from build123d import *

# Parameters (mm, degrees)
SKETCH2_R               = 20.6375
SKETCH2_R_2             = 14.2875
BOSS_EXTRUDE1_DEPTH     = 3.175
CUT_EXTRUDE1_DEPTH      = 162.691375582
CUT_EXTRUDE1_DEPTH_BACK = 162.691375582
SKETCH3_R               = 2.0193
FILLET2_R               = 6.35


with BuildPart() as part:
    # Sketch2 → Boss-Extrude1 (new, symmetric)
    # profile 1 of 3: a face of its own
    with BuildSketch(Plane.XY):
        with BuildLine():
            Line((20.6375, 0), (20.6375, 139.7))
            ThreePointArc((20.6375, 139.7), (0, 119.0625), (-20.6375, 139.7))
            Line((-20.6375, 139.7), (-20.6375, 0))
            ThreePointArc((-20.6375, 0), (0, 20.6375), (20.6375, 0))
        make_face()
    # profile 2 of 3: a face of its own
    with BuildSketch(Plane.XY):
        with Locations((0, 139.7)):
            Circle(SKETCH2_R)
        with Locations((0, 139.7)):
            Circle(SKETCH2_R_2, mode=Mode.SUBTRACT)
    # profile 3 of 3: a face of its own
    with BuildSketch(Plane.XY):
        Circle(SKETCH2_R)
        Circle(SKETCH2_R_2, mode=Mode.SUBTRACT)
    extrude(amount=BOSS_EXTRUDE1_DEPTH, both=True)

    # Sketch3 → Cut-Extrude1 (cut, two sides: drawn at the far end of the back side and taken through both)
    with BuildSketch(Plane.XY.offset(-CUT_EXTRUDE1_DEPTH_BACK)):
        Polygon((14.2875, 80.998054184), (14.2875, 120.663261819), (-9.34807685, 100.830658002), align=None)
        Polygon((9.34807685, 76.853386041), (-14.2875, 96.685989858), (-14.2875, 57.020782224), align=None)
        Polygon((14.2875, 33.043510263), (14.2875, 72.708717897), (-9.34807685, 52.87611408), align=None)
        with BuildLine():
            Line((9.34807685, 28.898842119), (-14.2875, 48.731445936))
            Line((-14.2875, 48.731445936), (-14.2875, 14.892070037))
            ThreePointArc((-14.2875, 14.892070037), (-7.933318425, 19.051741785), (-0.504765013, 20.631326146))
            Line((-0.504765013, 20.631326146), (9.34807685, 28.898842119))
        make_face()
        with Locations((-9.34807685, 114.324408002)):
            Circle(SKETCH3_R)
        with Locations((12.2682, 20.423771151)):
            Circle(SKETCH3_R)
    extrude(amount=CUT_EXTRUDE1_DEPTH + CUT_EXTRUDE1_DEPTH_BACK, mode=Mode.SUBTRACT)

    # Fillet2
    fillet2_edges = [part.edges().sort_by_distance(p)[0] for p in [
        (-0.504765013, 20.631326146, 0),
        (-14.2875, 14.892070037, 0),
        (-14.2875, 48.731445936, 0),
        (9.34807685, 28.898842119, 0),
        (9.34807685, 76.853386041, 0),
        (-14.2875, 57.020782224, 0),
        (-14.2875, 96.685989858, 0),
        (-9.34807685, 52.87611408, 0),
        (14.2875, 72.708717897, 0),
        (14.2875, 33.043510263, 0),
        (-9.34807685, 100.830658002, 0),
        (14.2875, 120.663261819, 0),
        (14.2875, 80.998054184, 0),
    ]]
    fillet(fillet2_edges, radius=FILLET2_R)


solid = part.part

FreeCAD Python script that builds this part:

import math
import FreeCAD as App
import Part
import Sketcher
from FreeCAD import Vector
Q = App.Units.Quantity


def edges_at(feature, points):
    """Names of the edges that pass closest to the given points."""
    edges = feature.Shape.Edges
    near = lambda p: min(range(len(edges)), key=lambda i: edges[i].distToShape(Part.Vertex(*p))[0])
    return sorted({f"Edge{near(p) + 1}" for p in points})

doc = App.newDocument("Part")
body = doc.addObject("PartDesign::Body", "Body")

# Sketch on XY plane
sketch1 = body.newObject("Sketcher::SketchObject", "Sketch")
sketch1.AttachmentSupport = (doc.getObject("XY_Plane"), [""])
sketch1.MapMode = "FlatFace"
sketch1.addGeometry(Part.LineSegment(Vector(21, 0, 0), Vector(21, 140, 0)), False)
sketch1.addGeometry(Part.ArcOfCircle(Part.Circle(Vector(0, 140, 0), Vector(0, 0, 1), 21), math.radians(0), math.radians(180)), False)
sketch1.addGeometry(Part.LineSegment(Vector(-21, 140, 0), Vector(-21, 0, 0)), False)
sketch1.addGeometry(Part.ArcOfCircle(Part.Circle(Vector(0, 0, 0), Vector(0, 0, 1), 21), math.radians(180), math.radians(360)), False)
sketch1.addGeometry(Part.Circle(Vector(0, 140, 0), Vector(0, 0, 1), 14), False)
sketch1.addGeometry(Part.Circle(Vector(0, 0, 0), Vector(0, 0, 1), 14), False)
sketch1.addConstraint(Sketcher.Constraint("Tangent", 0, 2, 1, 1))
sketch1.addConstraint(Sketcher.Constraint("Tangent", 1, 2, 2, 1))
sketch1.addConstraint(Sketcher.Constraint("Tangent", 2, 2, 3, 1))
sketch1.addConstraint(Sketcher.Constraint("Tangent", 3, 2, 0, 1))
sketch1.addConstraint(Sketcher.Constraint("Vertical", 0))
sketch1.addConstraint(Sketcher.Constraint("Vertical", 2))
sketch1.addConstraint(Sketcher.Constraint("Coincident", 3, 3, -1, 1))
sketch1.addConstraint(Sketcher.Constraint("Coincident", 5, 3, -1, 1))
sketch1.addConstraint(Sketcher.Constraint("Coincident", 4, 3, 1, 3))
sketch1.addConstraint(Sketcher.Constraint("Equal", 4, 5))
sketch1.addConstraint(Sketcher.Constraint("Diameter", 4, Q("1.125 in")))
sketch1.addConstraint(Sketcher.Constraint("DistanceY", 0, 1, 0, 2, Q("5.5 in")))
sketch1.addConstraint(Sketcher.Constraint("Radius", 1, Q("0.8125 in")))
pad1 = body.newObject("PartDesign::Pad", "Pad")
pad1.Profile = sketch1
pad1.Length = Q("0.25 in")
pad1.Midplane = True

# Sketch on XY plane
sketch2 = body.newObject("Sketcher::SketchObject", "Sketch001")
sketch2.AttachmentSupport = (doc.getObject("XY_Plane"), [""])
sketch2.MapMode = "FlatFace"
sketch2.addGeometry(Part.LineSegment(Vector(14.3, 81, 0), Vector(14.3, 120.7, 0)), False)
sketch2.addGeometry(Part.LineSegment(Vector(14.3, 120.7, 0), Vector(-9.3, 100.8, 0)), False)
sketch2.addGeometry(Part.LineSegment(Vector(-9.3, 100.8, 0), Vector(14.3, 81, 0)), False)
sketch2.addGeometry(Part.LineSegment(Vector(9.3, 76.9, 0), Vector(-14.3, 96.7, 0)), False)
sketch2.addGeometry(Part.LineSegment(Vector(-14.3, 96.7, 0), Vector(-14.3, 57, 0)), False)
sketch2.addGeometry(Part.LineSegment(Vector(-14.3, 57, 0), Vector(9.3, 76.9, 0)), False)
sketch2.addGeometry(Part.LineSegment(Vector(14.3, 33, 0), Vector(14.3, 72.7, 0)), False)
sketch2.addGeometry(Part.LineSegment(Vector(14.3, 72.7, 0), Vector(-9.3, 52.9, 0)), False)
sketch2.addGeometry(Part.LineSegment(Vector(-9.3, 52.9, 0), Vector(14.3, 33, 0)), False)
sketch2.addGeometry(Part.LineSegment(Vector(9.3, 28.9, 0), Vector(-14.3, 48.7, 0)), False)
sketch2.addGeometry(Part.LineSegment(Vector(-14.3, 48.7, 0), Vector(-14.3, 14.9, 0)), False)
sketch2.addGeometry(Part.ArcOfCircle(Part.Circle(Vector(0, 0, 0), Vector(0, 0, 1), 20.6), math.radians(91), math.radians(134)), False)
sketch2.addGeometry(Part.LineSegment(Vector(-0.5, 20.6, 0), Vector(9.3, 28.9, 0)), False)
sketch2.addGeometry(Part.Circle(Vector(-9.3, 114.3, 0), Vector(0, 0, 1), 2), False)
sketch2.addGeometry(Part.Circle(Vector(12.3, 20.4, 0), Vector(0, 0, 1), 2), False)
sketch2.addConstraint(Sketcher.Constraint("Coincident", 0, 2, 1, 1))
sketch2.addConstraint(Sketcher.Constraint("Coincident", 1, 2, 2, 1))
sketch2.addConstraint(Sketcher.Constraint("Coincident", 2, 2, 0, 1))
sketch2.addConstraint(Sketcher.Constraint("Coincident", 3, 2, 4, 1))
sketch2.addConstraint(Sketcher.Constraint("Coincident", 4, 2, 5, 1))
sketch2.addConstraint(Sketcher.Constraint("Coincident", 5, 2, 3, 1))
sketch2.addConstraint(Sketcher.Constraint("Coincident", 6, 2, 7, 1))
sketch2.addConstraint(Sketcher.Constraint("Coincident", 7, 2, 8, 1))
sketch2.addConstraint(Sketcher.Constraint("Coincident", 8, 2, 6, 1))
sketch2.addConstraint(Sketcher.Constraint("Coincident", 9, 2, 10, 1))
sketch2.addConstraint(Sketcher.Constraint("Coincident", 10, 2, 11, 2))
sketch2.addConstraint(Sketcher.Constraint("Coincident", 11, 1, 12, 1))
sketch2.addConstraint(Sketcher.Constraint("Coincident", 12, 2, 9, 1))
sketch2.addConstraint(Sketcher.Constraint("Vertical", 0))
sketch2.addConstraint(Sketcher.Constraint("Vertical", 4))
sketch2.addConstraint(Sketcher.Constraint("Vertical", 6))
sketch2.addConstraint(Sketcher.Constraint("Vertical", 10))
sketch2.addConstraint(Sketcher.Constraint("Coincident", 11, 3, -1, 1))
sketch2.addConstraint(Sketcher.Constraint("Equal", 13, 14))
sketch2.addConstraint(Sketcher.Constraint("Parallel", 2, 3))
sketch2.addConstraint(Sketcher.Constraint("Parallel", 1, 5))
sketch2.addConstraint(Sketcher.Constraint("Parallel", 5, 7))
sketch2.addConstraint(Sketcher.Constraint("Parallel", 3, 8))
sketch2.addConstraint(Sketcher.Constraint("Parallel", 8, 9))
sketch2.addConstraint(Sketcher.Constraint("Parallel", 7, 12))
sketch2.addConstraint(Sketcher.Constraint("Vertical", 13, 3, 1, 2))
sketch2.addConstraint(Sketcher.Constraint("Vertical", 2, 2, 6, 2))
sketch2.addConstraint(Sketcher.Constraint("Vertical", 1, 2, 7, 2))
sketch2.addConstraint(Sketcher.Constraint("Vertical", 4, 2, 9, 2))
sketch2.addConstraint(Sketcher.Constraint("Vertical", 5, 2, 12, 2))
sketch2.addConstraint(Sketcher.Constraint("Equal", 0, 4))
sketch2.addConstraint(Sketcher.Constraint("Equal", 1, 2))
sketch2.addConstraint(Sketcher.Constraint("Diameter", 13, Q("0.159 in")))
sketch2.addConstraint(Sketcher.Constraint("Angle", 1, Q("-140 deg")))
sketch2.addConstraint(Sketcher.Constraint("Radius", 11, Q("0.8125 in")))
sketch2.addConstraint(Sketcher.Constraint("DistanceX", -1, 1, 14, 3, Q("0.483 in")))
sketch2.addConstraint(Sketcher.Constraint("DistanceX", -1, 1, 0, 2, Q("0.5625 in")))
sketch2.addConstraint(Sketcher.Constraint("DistanceX", 3, 2, -1, 1, Q("0.5625 in")))
sketch2.addConstraint(Sketcher.Constraint("DistanceY", 1, 2, 13, 3, Q("0.53125 in")))
sketch2.addConstraint(Sketcher.Constraint("DistanceY", 10, 2, 14, 3, 5.531701))
sketch2.addConstraint(Sketcher.Constraint("Distance", 12, 12.861972))
sketch2.addConstraint(Sketcher.Constraint("DistanceY", 0, 1, 0, 2, 39.665208))
sketch2.addConstraint(Sketcher.Constraint("DistanceY", -1, 1, 13, 3, 114.324408))
sketch2.addConstraint(Sketcher.Constraint("DistanceY", -1, 1, 3, 2, 96.68599))
sketch2.addConstraint(Sketcher.Constraint("DistanceY", -1, 1, 8, 2, 33.04351))
pocket1 = body.newObject("PartDesign::Pocket", "Pocket")
pocket1.Profile = sketch2
pocket1.Type = "ThroughAll"
pocket1.Midplane = True
doc.recompute()

fillet = body.newObject("PartDesign::Fillet", "Fillet")
fillet.Base = (pocket1, edges_at(pocket1, [
    (-0.505, 20.631, 0),
    (-14.287, 14.892, 0),
    (-14.287, 48.731, 0),
    (9.348, 28.899, 0),
    (9.348, 76.853, 0),
    (-14.287, 57.021, 0),
    (-14.287, 96.686, 0),
    (-9.348, 52.876, 0),
    (14.287, 72.709, 0),
    (14.287, 33.044, 0),
    (-9.348, 100.831, 0),
    (14.287, 120.663, 0),
    (14.287, 80.998, 0),
]))
fillet.Radius = Q("0.25 in")

doc.recompute()
